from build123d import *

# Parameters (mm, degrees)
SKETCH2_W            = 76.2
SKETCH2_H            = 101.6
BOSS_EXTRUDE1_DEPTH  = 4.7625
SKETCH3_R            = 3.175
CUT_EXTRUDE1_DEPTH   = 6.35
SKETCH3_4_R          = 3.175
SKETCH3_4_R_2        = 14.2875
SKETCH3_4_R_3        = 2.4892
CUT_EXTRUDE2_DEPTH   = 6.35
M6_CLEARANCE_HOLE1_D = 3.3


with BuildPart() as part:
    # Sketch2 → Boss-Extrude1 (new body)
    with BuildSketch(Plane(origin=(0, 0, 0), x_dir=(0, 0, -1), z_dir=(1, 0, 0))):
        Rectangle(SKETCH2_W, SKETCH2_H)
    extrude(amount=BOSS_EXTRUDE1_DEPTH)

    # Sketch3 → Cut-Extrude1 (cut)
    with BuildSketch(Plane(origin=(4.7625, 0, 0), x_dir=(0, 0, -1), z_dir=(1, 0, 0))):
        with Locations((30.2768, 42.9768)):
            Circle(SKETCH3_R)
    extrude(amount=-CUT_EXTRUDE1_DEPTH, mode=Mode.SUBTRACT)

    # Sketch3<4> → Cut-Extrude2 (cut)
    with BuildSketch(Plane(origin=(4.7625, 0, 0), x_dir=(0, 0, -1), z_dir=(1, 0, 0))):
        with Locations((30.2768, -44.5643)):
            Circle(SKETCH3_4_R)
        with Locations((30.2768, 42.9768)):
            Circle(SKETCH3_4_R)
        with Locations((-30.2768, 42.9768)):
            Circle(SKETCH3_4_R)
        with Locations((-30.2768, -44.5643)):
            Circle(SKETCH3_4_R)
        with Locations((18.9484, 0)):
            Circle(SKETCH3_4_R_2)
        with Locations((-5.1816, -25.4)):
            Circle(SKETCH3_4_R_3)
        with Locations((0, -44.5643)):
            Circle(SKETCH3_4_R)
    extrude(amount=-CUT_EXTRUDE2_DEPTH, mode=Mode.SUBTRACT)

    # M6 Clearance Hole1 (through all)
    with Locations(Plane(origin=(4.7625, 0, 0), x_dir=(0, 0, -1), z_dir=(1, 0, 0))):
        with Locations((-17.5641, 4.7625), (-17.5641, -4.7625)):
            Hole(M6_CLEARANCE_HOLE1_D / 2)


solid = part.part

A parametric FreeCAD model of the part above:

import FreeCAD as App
import Part
import Sketcher

V = App.Vector
Q = App.Units.Quantity


def add_polygon(sketch, points):
    """Adds a closed chain of lines whose ends are joined by coincident constraints."""
    first, n = sketch.GeometryCount, len(points)
    for a, b in zip(points, points[1:] + points[:1]):
        sketch.addGeometry(Part.LineSegment(App.Vector(*a, 0), App.Vector(*b, 0)), False)
    for i in range(n):
        sketch.addConstraint(Sketcher.Constraint("Coincident", first + i, 2, first + (i + 1) % n, 1))

doc = App.newDocument("Part")
params = doc.addObject("Spreadsheet::Sheet", "Params")
for row, (alias, value) in enumerate([
    ("sketch1_width", "4 in"),
    ("sketch1_height", "3 in"),
    ("pad1_length", "0.1875 in"),
    ("sketch2_diameter", "0.25 in"),
    ("pocket1_length", "0.25 in"),
    ("sketch3_diameter", "0.25 in"),
    ("sketch3_diameter2", "1.125 in"),
    ("sketch3_diameter3", "0.196 in"),
    ("pocket2_length", "0.25 in"),
    ("hole_diameter", "3.3 mm"),
], start=1):
    params.set(f"A{row}", alias)
    params.set(f"B{row}", "=" + value)
    params.setAlias(f"B{row}", alias)

body = doc.addObject("PartDesign::Body", "Body")

sketch1 = body.newObject("Sketcher::SketchObject", "Sketch")
sketch1.AttachmentSupport = (doc.getObject("YZ_Plane"), [""])
sketch1.MapMode = "FlatFace"
add_polygon(sketch1, [(51, 38), (-51, 38), (-51, -38), (51, -38)])
sketch1.addConstraint([
    Sketcher.Constraint("Horizontal", 0),
    Sketcher.Constraint("Vertical", 1),
    Sketcher.Constraint("Horizontal", 2),
    Sketcher.Constraint("Vertical", 3),
    Sketcher.Constraint("Symmetric", 0, 2, 2, 2, -1, 1),
    Sketcher.Constraint("DistanceX", 0, 2, 0, 1, Q("4 in")),
    Sketcher.Constraint("DistanceY", 1, 2, 1, 1, Q("3 in")),
])
sketch1.setExpression("Constraints[9]", "Params.sketch1_width")
sketch1.setExpression("Constraints[10]", "Params.sketch1_height")
pad1 = body.newObject("PartDesign::Pad", "Pad")
pad1.Profile = sketch1
pad1.setExpression("Length", "Params.pad1_length")

sketch2 = body.newObject("Sketcher::SketchObject", "Sketch001")
sketch2.AttachmentSupport = (doc.getObject("YZ_Plane"), [""])
sketch2.MapMode = "FlatFace"
sketch2.AttachmentOffset = App.Placement(V(0, 0, 0.1875 * 25.4), App.Rotation())
sketch2.addGeometry(Part.Circle(V(43, -30.3, 0), V(0, 0, 1), 3.2), False)
sketch2.addConstraint([
    Sketcher.Constraint("Diameter", 0, Q("0.25 in")),
    Sketcher.Constraint("DistanceX", -1, 1, 0, 3, Q("1.692 in")),
    Sketcher.Constraint("DistanceY", 0, 3, -1, 1, Q("1.192 in")),
])
sketch2.setExpression("Constraints[0]", "Params.sketch2_diameter")
pocket1 = body.newObject("PartDesign::Pocket", "Pocket")
pocket1.Profile = sketch2
pocket1.setExpression("Length", "Params.pocket1_length")

sketch3 = body.newObject("Sketcher::SketchObject", "Sketch002")
sketch3.AttachmentSupport = (doc.getObject("YZ_Plane"), [""])
sketch3.MapMode = "FlatFace"
sketch3.AttachmentOffset = App.Placement(V(0, 0, 0.1875 * 25.4), App.Rotation())
sketch3.addGeometry([
    Part.Circle(V(-44.6, -30.3, 0), V(0, 0, 1), 3.2),
    Part.Circle(V(43, -30.3, 0), V(0, 0, 1), 3.2),
    Part.Circle(V(43, 30.3, 0), V(0, 0, 1), 3.2),
    Part.Circle(V(-44.6, 30.3, 0), V(0, 0, 1), 3.2),
    Part.Circle(V(0, -18.9, 0), V(0, 0, 1), 14.3),
    Part.Circle(V(-25.4, 5.2, 0), V(0, 0, 1), 2.5),
    Part.Circle(V(-44.6, 0, 0), V(0, 0, 1), 3.2),
], False)
sketch3.addConstraint([
    Sketcher.Constraint("Equal", 0, 1),
    Sketcher.Constraint("Equal", 1, 2),
    Sketcher.Constraint("Equal", 2, 3),
    Sketcher.Constraint("Equal", 3, 6),
    Sketcher.Constraint("Symmetric", 1, 3, 2, 3, -1),
    Sketcher.Constraint("Symmetric", 0, 3, 3, 3, -1),
    Sketcher.Constraint("PointOnObject", 4, 3, -2),
    Sketcher.Constraint("PointOnObject", 6, 3, -1),
    Sketcher.Constraint("Horizontal", 0, 3, 1, 3),
    Sketcher.Constraint("Vertical", 3, 3, 6, 3),
    Sketcher.Constraint("Diameter", 0, Q("0.25 in")),
    Sketcher.Constraint("Diameter", 4, Q("1.125 in")),
    Sketcher.Constraint("Diameter", 5, Q("0.196 in")),
    Sketcher.Constraint("DistanceX", 5, 3, -1, 1, Q("1 in")),
    Sketcher.Constraint("DistanceY", 4, 3, 5, 3, Q("0.95 in")),
    Sketcher.Constraint("DistanceY", 0, 3, -1, 1, Q("1.192 in")),
    Sketcher.Constraint("DistanceX", -1, 1, 1, 3, Q("1.692 in")),
    Sketcher.Constraint("DistanceY", 4, 3, -1, 1, Q("0.746 in")),
    Sketcher.Constraint("DistanceX", 0, 3, -1, 1, Q("1.7545 in")),
])
sketch3.setExpression("Constraints[10]", "Params.sketch3_diameter")
sketch3.setExpression("Constraints[11]", "Params.sketch3_diameter2")
sketch3.setExpression("Constraints[12]", "Params.sketch3_diameter3")
pocket2 = body.newObject("PartDesign::Pocket", "Pocket001")
pocket2.Profile = sketch3
pocket2.setExpression("Length", "Params.pocket2_length")

sketch4 = body.newObject("Sketcher::SketchObject", "Sketch003")
sketch4.AttachmentSupport = (doc.getObject("YZ_Plane"), [""])
sketch4.MapMode = "FlatFace"
sketch4.AttachmentOffset = App.Placement(V(0, 0, 0.1875 * 25.4), App.Rotation())
sketch4.addGeometry([
    Part.Circle(V(4.8, 17.6, 0), V(0, 0, 1), 1.6),
    Part.Circle(V(-4.8, 17.6, 0), V(0, 0, 1), 1.6),
], False)
sketch4.addConstraint([
    Sketcher.Constraint("Equal", 0, 1),
    Sketcher.Constraint("Symmetric", 0, 3, 1, 3, -2),
    Sketcher.Constraint("Diameter", 0, 3.3),
    Sketcher.Constraint("DistanceX", -1, 1, 0, 3, Q("0.1875 in")),
    Sketcher.Constraint("DistanceY", -1, 1, 0, 3, Q("0.6915 in")),
])
doc.recompute()
hole = body.newObject("PartDesign::Hole", "Hole")
hole.Profile = sketch4
hole.ThreadType = "None"
hole.setExpression("Diameter", "Params.hole_diameter")
hole.DepthType = "ThroughAll"

doc.recompute()
